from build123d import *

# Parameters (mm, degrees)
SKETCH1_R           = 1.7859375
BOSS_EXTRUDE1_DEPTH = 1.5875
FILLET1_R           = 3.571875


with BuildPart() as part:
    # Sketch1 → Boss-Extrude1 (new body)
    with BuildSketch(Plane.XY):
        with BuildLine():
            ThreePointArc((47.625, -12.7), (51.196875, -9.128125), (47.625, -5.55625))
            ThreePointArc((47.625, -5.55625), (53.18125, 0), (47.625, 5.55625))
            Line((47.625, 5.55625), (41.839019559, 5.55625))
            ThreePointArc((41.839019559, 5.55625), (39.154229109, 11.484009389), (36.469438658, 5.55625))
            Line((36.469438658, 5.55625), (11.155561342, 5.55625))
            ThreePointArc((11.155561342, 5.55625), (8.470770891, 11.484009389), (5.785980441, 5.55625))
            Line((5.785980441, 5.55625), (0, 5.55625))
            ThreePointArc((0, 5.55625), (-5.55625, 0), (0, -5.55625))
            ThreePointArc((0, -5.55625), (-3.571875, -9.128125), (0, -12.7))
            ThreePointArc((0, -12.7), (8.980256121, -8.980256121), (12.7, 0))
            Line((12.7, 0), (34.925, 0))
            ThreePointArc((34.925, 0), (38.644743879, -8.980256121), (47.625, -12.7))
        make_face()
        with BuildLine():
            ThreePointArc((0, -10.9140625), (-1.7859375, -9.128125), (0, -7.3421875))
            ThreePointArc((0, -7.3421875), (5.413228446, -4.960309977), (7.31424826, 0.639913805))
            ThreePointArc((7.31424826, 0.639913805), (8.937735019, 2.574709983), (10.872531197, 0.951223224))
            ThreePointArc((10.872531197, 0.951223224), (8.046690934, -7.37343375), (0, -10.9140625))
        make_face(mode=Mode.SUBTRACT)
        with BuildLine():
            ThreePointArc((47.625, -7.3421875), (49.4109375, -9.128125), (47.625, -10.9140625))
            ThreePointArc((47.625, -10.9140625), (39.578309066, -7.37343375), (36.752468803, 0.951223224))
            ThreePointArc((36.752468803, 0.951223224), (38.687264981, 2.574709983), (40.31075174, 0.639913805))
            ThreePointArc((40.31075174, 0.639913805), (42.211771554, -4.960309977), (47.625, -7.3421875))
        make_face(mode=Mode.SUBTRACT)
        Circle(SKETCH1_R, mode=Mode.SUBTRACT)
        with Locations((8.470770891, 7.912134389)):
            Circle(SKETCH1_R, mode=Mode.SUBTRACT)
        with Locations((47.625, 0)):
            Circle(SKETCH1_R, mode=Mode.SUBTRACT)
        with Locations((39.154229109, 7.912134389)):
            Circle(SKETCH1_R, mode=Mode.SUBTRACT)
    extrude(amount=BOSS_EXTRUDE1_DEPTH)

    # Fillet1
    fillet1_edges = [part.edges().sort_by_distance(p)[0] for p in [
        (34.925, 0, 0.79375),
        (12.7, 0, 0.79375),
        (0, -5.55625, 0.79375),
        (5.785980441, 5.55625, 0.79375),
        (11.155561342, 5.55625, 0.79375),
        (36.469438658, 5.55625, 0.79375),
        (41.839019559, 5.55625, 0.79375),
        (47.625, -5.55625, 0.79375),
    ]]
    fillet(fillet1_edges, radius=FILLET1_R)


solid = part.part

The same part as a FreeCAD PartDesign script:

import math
import FreeCAD as App
import Part
import Sketcher

V = App.Vector
Q = App.Units.Quantity


def edges_at(feature, points):
    """Names of the edges that pass closest to the given points."""
    edges = feature.Shape.Edges
    near = lambda p: min(range(len(edges)), key=lambda i: edges[i].distToShape(Part.Vertex(*p))[0])
    return sorted({f"Edge{near(p) + 1}" for p in points})

doc = App.newDocument("Part")
params = doc.addObject("Spreadsheet::Sheet", "Params")
for row, (alias, value) in enumerate([
    ("sketch1_radius", "0.5 in"),
    ("sketch1_diameter", "0.140625 in"),
    ("sketch1_radius2", "0.140625 in"),
    ("sketch1_width", "0.875 in"),
    ("pad1_length", "0.0625 in"),
    ("fillet_radius", "0.140625 in"),
], start=1):
    params.set(f"A{row}", alias)
    params.set(f"B{row}", "=" + value)
    params.setAlias(f"B{row}", alias)

body = doc.addObject("PartDesign::Body", "Body")

# Sketch on XY plane
sketch1 = body.newObject("Sketcher::SketchObject", "Sketch")
sketch1.AttachmentSupport = (doc.getObject("XY_Plane"), [""])
sketch1.MapMode = "FlatFace"
sketch1.addGeometry(Part.ArcOfCircle(Part.Circle(V(47.6, -9.1, 0), V(0, 0, 1), 3.6), math.radians(-90), math.radians(90)), False)
sketch1.addGeometry(Part.ArcOfCircle(Part.Circle(V(47.6, 0, 0), V(0, 0, 1), 5.6), math.radians(-90), math.radians(90)), False)
sketch1.addGeometry(Part.LineSegment(V(47.6, 5.6, 0), V(41.8, 5.6, 0)), False)
sketch1.addGeometry(Part.ArcOfCircle(Part.Circle(V(39.2, 7.9, 0), V(0, 0, 1), 3.6), math.radians(-41), math.radians(221)), False)
sketch1.addGeometry(Part.LineSegment(V(36.5, 5.6, 0), V(11.2, 5.6, 0)), False)
sketch1.addGeometry(Part.ArcOfCircle(Part.Circle(V(8.5, 7.9, 0), V(0, 0, 1), 3.6), math.radians(-41), math.radians(221)), False)
sketch1.addGeometry(Part.LineSegment(V(5.8, 5.6, 0), V(0, 5.6, 0)), False)
sketch1.addGeometry(Part.ArcOfCircle(Part.Circle(V(0, 0, 0), V(0, 0, 1), 5.6), math.radians(90), math.radians(270)), False)
sketch1.addGeometry(Part.ArcOfCircle(Part.Circle(V(0, -9.1, 0), V(0, 0, 1), 3.6), math.radians(90), math.radians(270)), False)
sketch1.addGeometry(Part.ArcOfCircle(Part.Circle(V(0, 0, 0), V(0, 0, 1), 12.7), math.radians(-90), math.radians(0)), False)
sketch1.addGeometry(Part.LineSegment(V(12.7, 0, 0), V(34.9, 0, 0)), False)
sketch1.addGeometry(Part.ArcOfCircle(Part.Circle(V(47.6, 0, 0), V(0, 0, 1), 12.7), math.radians(180), math.radians(270)), False)
sketch1.addGeometry(Part.ArcOfCircle(Part.Circle(V(0, 0, 0), V(0, 0, 1), 10.9), math.radians(-90), math.radians(5)), False)
sketch1.addGeometry(Part.ArcOfCircle(Part.Circle(V(0, -9.1, 0), V(0, 0, 1), 1.8), math.radians(90), math.radians(270)), False)
sketch1.addGeometry(Part.ArcOfCircle(Part.Circle(V(0, 0, 0), V(0, 0, 1), 7.3), math.radians(-90), math.radians(5)), False)
sketch1.addGeometry(Part.ArcOfCircle(Part.Circle(V(9.1, 0.8, 0), V(0, 0, 1), 1.8), math.radians(5), math.radians(185)), False)
sketch1.addGeometry(Part.ArcOfCircle(Part.Circle(V(47.6, 0, 0), V(0, 0, 1), 7.3), math.radians(175), math.radians(270)), False)
sketch1.addGeometry(Part.ArcOfCircle(Part.Circle(V(47.6, -9.1, 0), V(0, 0, 1), 1.8), math.radians(-90), math.radians(90)), False)
sketch1.addGeometry(Part.ArcOfCircle(Part.Circle(V(47.6, 0, 0), V(0, 0, 1), 10.9), math.radians(175), math.radians(270)), False)
sketch1.addGeometry(Part.ArcOfCircle(Part.Circle(V(38.5, 0.8, 0), V(0, 0, 1), 1.8), math.radians(-5), math.radians(175)), False)
sketch1.addGeometry(Part.Circle(V(0, 0, 0), V(0, 0, 1), 1.8), False)
sketch1.addGeometry(Part.Circle(V(8.5, 7.9, 0), V(0, 0, 1), 1.8), False)
sketch1.addGeometry(Part.Circle(V(47.6, 0, 0), V(0, 0, 1), 1.8), False)
sketch1.addGeometry(Part.Circle(V(39.2, 7.9, 0), V(0, 0, 1), 1.8), False)
sketch1.addConstraint(Sketcher.Constraint("Tangent", 0, 2, 1, 1))
sketch1.addConstraint(Sketcher.Constraint("Tangent", 1, 2, 2, 1))
sketch1.addConstraint(Sketcher.Constraint("Coincident", 2, 2, 3, 1))
sketch1.addConstraint(Sketcher.Constraint("Coincident", 3, 2, 4, 1))
sketch1.addConstraint(Sketcher.Constraint("Coincident", 4, 2, 5, 1))
sketch1.addConstraint(Sketcher.Constraint("Coincident", 5, 2, 6, 1))
sketch1.addConstraint(Sketcher.Constraint("Tangent", 6, 2, 7, 1))
sketch1.addConstraint(Sketcher.Constraint("Tangent", 7, 2, 8, 1))
sketch1.addConstraint(Sketcher.Constraint("Tangent", 8, 2, 9, 1))
sketch1.addConstraint(Sketcher.Constraint("Coincident", 9, 2, 10, 1))
sketch1.addConstraint(Sketcher.Constraint("Coincident", 10, 2, 11, 1))
sketch1.addConstraint(Sketcher.Constraint("Tangent", 11, 2, 0, 1))
sketch1.addConstraint(Sketcher.Constraint("Tangent", 12, 1, 13, 2))
sketch1.addConstraint(Sketcher.Constraint("Tangent", 13, 1, 14, 1))
sketch1.addConstraint(Sketcher.Constraint("Tangent", 14, 2, 15, 2))
sketch1.addConstraint(Sketcher.Constraint("Tangent", 15, 1, 12, 2))
sketch1.addConstraint(Sketcher.Constraint("Tangent", 16, 2, 17, 2))
sketch1.addConstraint(Sketcher.Constraint("Tangent", 17, 1, 18, 2))
sketch1.addConstraint(Sketcher.Constraint("Tangent", 18, 1, 19, 2))
sketch1.addConstraint(Sketcher.Constraint("Tangent", 19, 1, 16, 1))
sketch1.addConstraint(Sketcher.Constraint("Horizontal", 2))
sketch1.addConstraint(Sketcher.Constraint("Horizontal", 4))
sketch1.addConstraint(Sketcher.Constraint("Horizontal", 6))
sketch1.addConstraint(Sketcher.Constraint("Horizontal", 10))
sketch1.addConstraint(Sketcher.Constraint("Coincident", 7, 3, -1, 1))
sketch1.addConstraint(Sketcher.Constraint("Coincident", 9, 3, -1, 1))
sketch1.addConstraint(Sketcher.Constraint("Coincident", 12, 3, -1, 1))
sketch1.addConstraint(Sketcher.Constraint("Coincident", 14, 3, -1, 1))
sketch1.addConstraint(Sketcher.Constraint("Coincident", 20, 3, -1, 1))
sketch1.addConstraint(Sketcher.Constraint("Coincident", 11, 3, 1, 3))
sketch1.addConstraint(Sketcher.Constraint("Coincident", 13, 3, 8, 3))
sketch1.addConstraint(Sketcher.Constraint("Coincident", 16, 3, 1, 3))
sketch1.addConstraint(Sketcher.Constraint("Coincident", 17, 3, 0, 3))
sketch1.addConstraint(Sketcher.Constraint("Coincident", 18, 3, 1, 3))
sketch1.addConstraint(Sketcher.Constraint("Coincident", 21, 3, 5, 3))
sketch1.addConstraint(Sketcher.Constraint("Coincident", 22, 3, 1, 3))
sketch1.addConstraint(Sketcher.Constraint("Coincident", 23, 3, 3, 3))
sketch1.addConstraint(Sketcher.Constraint("Equal", 0, 3))
sketch1.addConstraint(Sketcher.Constraint("Equal", 3, 5))
sketch1.addConstraint(Sketcher.Constraint("Equal", 1, 7))
sketch1.addConstraint(Sketcher.Constraint("Equal", 5, 8))
sketch1.addConstraint(Sketcher.Constraint("Equal", 14, 16))
sketch1.addConstraint(Sketcher.Constraint("Equal", 19, 20))
sketch1.addConstraint(Sketcher.Constraint("Equal", 20, 21))
sketch1.addConstraint(Sketcher.Constraint("Equal", 21, 22))
sketch1.addConstraint(Sketcher.Constraint("Equal", 22, 23))
sketch1.addConstraint(Sketcher.Constraint("Symmetric", 0, 2, 1, 2, -1))
sketch1.addConstraint(Sketcher.Constraint("PointOnObject", 8, 3, -2))
sketch1.addConstraint(Sketcher.Constraint("PointOnObject", 9, 2, -1))
sketch1.addConstraint(Sketcher.Constraint("Horizontal", 3, 3, 5, 3))
sketch1.addConstraint(Sketcher.Constraint("Horizontal", 15, 3, 19, 3))
sketch1.addConstraint(Sketcher.Constraint("Horizontal", 2, 2, 3, 2))
sketch1.addConstraint(Sketcher.Constraint("Equal", 2, 6))
sketch1.addConstraint(Sketcher.Constraint("Radius", 9, Q("0.5 in")))
sketch1.addConstraint(Sketcher.Constraint("Diameter", 20, Q("0.140625 in")))
sketch1.addConstraint(Sketcher.Constraint("Radius", 0, Q("0.140625 in")))
sketch1.addConstraint(Sketcher.Constraint("DistanceX", 10, 1, 10, 2, Q("0.875 in")))
sketch1.addConstraint(Sketcher.Constraint("DistanceX", 2, 2, 2, 1, Q("5.78598 mm")))
sketch1.addConstraint(Sketcher.Constraint("DistanceX", 4, 2, 4, 1, Q("25.313877 mm")))
sketch1.addConstraint(Sketcher.Constraint("DistanceX", -1, 1, 15, 3, Q("9.09339 mm")))
sketch1.setExpression("Constraints[53]", "Params.sketch1_radius")
sketch1.setExpression("Constraints[54]", "Params.sketch1_diameter")
sketch1.setExpression("Constraints[55]", "Params.sketch1_radius2")
sketch1.setExpression("Constraints[56]", "Params.sketch1_width")
pad1 = body.newObject("PartDesign::Pad", "Pad")
pad1.Profile = sketch1
pad1.setExpression("Length", "Params.pad1_length")
doc.recompute()

fillet = body.newObject("PartDesign::Fillet", "Fillet")
fillet.Base = (pad1, edges_at(pad1, [
    (34.925, 0, 0.794),
    (12.7, 0, 0.794),
    (0, -5.556, 0.794),
    (5.786, 5.556, 0.794),
    (11.156, 5.556, 0.794),
    (36.469, 5.556, 0.794),
    (41.839, 5.556, 0.794),
    (47.625, -5.556, 0.794),
]))
fillet.setExpression("Radius", "Params.fillet_radius")

doc.recompute()
